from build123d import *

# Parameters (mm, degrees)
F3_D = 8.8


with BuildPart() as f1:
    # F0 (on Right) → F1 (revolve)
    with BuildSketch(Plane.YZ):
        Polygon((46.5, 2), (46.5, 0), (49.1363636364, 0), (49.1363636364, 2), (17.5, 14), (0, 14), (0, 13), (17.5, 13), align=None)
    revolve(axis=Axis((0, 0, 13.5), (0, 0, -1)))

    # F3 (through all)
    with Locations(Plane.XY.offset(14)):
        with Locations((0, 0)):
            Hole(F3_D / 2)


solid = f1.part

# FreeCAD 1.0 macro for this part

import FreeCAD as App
import Part
import Sketcher

doc = App.newDocument("Part")
body = doc.addObject("PartDesign::Body", "Body")

# Sketch on YZ plane
sketch1 = body.newObject("Sketcher::SketchObject", "Sketch")
sketch1.AttachmentSupport = (doc.getObject("YZ_Plane"), [""])
sketch1.MapMode = "FlatFace"
sketch1.addGeometry([
    Part.LineSegment(App.Vector(46.5, 2, 0), App.Vector(46.5, 0, 0)),  # 0
    Part.LineSegment(App.Vector(46.5, 0, 0), App.Vector(49.1, 0, 0)),  # 1
    Part.LineSegment(App.Vector(49.1, 0, 0), App.Vector(49.1, 2, 0)),  # 2
    Part.LineSegment(App.Vector(49.1, 2, 0), App.Vector(17.5, 14, 0)),  # 3
    Part.LineSegment(App.Vector(17.5, 14, 0), App.Vector(0, 14, 0)),  # 4
    Part.LineSegment(App.Vector(0, 14, 0), App.Vector(0, 13, 0)),  # 5
    Part.LineSegment(App.Vector(0, 13, 0), App.Vector(17.5, 13, 0)),  # 6
    Part.LineSegment(App.Vector(17.5, 13, 0), App.Vector(46.5, 2, 0)),  # 7
], False)
sketch1.addConstraint([
    Sketcher.Constraint("Coincident", 0, 2, 1, 1),
    Sketcher.Constraint("Coincident", 1, 2, 2, 1),
    Sketcher.Constraint("Coincident", 2, 2, 3, 1),
    Sketcher.Constraint("Coincident", 3, 2, 4, 1),
    Sketcher.Constraint("Coincident", 4, 2, 5, 1),
    Sketcher.Constraint("Coincident", 5, 2, 6, 1),
    Sketcher.Constraint("Coincident", 6, 2, 7, 1),
    Sketcher.Constraint("Coincident", 7, 2, 0, 1),
    Sketcher.Constraint("Vertical", 0),
    Sketcher.Constraint("Horizontal", 1),
    Sketcher.Constraint("Vertical", 2),
    Sketcher.Constraint("Horizontal", 4),
    Sketcher.Constraint("Vertical", 5),
    Sketcher.Constraint("Horizontal", 6),
    Sketcher.Constraint("PointOnObject", 0, 2, -1),
    Sketcher.Constraint("PointOnObject", 4, 2, -2),
    Sketcher.Constraint("Parallel", 3, 7),
    Sketcher.Constraint("Horizontal", 2, 2, 7, 2),
    Sketcher.Constraint("Vertical", 3, 2, 6, 2),
    Sketcher.Constraint("DistanceY", 0, 2, 0, 1, 2.0),
    Sketcher.Constraint("DistanceY", 5, 2, 5, 1, 1.0),
    Sketcher.Constraint("DistanceX", 4, 2, 4, 1, 17.5),
    Sketcher.Constraint("DistanceY", -1, 1, 3, 2, 14.0),
    Sketcher.Constraint("DistanceX", 3, 2, 0, 2, 29.0),
])
revolution = body.newObject("PartDesign::Revolution", "Revolution")
revolution.Profile = sketch1
revolution.ReferenceAxis = (sketch1, ["V_Axis"])
revolution.Angle = 360

# Sketch on XY plane
sketch2 = body.newObject("Sketcher::SketchObject", "Sketch001")
sketch2.AttachmentSupport = (doc.getObject("XY_Plane"), [""])
sketch2.MapMode = "FlatFace"
sketch2.AttachmentOffset = App.Placement(App.Vector(0, 0, 14), App.Rotation())
sketch2.addGeometry(Part.Circle(App.Vector(0, 0, 0), App.Vector(0, 0, 1), 4.4), False)
sketch2.addConstraint([
    Sketcher.Constraint("Coincident", 0, 3, -1, 1),
    Sketcher.Constraint("Diameter", 0, 8.8),
])
doc.recompute()
hole = body.newObject("PartDesign::Hole", "Hole")
hole.Profile = sketch2
hole.ThreadType = "None"
hole.Diameter = 8.8
hole.DepthType = "ThroughAll"

doc.recompute()
